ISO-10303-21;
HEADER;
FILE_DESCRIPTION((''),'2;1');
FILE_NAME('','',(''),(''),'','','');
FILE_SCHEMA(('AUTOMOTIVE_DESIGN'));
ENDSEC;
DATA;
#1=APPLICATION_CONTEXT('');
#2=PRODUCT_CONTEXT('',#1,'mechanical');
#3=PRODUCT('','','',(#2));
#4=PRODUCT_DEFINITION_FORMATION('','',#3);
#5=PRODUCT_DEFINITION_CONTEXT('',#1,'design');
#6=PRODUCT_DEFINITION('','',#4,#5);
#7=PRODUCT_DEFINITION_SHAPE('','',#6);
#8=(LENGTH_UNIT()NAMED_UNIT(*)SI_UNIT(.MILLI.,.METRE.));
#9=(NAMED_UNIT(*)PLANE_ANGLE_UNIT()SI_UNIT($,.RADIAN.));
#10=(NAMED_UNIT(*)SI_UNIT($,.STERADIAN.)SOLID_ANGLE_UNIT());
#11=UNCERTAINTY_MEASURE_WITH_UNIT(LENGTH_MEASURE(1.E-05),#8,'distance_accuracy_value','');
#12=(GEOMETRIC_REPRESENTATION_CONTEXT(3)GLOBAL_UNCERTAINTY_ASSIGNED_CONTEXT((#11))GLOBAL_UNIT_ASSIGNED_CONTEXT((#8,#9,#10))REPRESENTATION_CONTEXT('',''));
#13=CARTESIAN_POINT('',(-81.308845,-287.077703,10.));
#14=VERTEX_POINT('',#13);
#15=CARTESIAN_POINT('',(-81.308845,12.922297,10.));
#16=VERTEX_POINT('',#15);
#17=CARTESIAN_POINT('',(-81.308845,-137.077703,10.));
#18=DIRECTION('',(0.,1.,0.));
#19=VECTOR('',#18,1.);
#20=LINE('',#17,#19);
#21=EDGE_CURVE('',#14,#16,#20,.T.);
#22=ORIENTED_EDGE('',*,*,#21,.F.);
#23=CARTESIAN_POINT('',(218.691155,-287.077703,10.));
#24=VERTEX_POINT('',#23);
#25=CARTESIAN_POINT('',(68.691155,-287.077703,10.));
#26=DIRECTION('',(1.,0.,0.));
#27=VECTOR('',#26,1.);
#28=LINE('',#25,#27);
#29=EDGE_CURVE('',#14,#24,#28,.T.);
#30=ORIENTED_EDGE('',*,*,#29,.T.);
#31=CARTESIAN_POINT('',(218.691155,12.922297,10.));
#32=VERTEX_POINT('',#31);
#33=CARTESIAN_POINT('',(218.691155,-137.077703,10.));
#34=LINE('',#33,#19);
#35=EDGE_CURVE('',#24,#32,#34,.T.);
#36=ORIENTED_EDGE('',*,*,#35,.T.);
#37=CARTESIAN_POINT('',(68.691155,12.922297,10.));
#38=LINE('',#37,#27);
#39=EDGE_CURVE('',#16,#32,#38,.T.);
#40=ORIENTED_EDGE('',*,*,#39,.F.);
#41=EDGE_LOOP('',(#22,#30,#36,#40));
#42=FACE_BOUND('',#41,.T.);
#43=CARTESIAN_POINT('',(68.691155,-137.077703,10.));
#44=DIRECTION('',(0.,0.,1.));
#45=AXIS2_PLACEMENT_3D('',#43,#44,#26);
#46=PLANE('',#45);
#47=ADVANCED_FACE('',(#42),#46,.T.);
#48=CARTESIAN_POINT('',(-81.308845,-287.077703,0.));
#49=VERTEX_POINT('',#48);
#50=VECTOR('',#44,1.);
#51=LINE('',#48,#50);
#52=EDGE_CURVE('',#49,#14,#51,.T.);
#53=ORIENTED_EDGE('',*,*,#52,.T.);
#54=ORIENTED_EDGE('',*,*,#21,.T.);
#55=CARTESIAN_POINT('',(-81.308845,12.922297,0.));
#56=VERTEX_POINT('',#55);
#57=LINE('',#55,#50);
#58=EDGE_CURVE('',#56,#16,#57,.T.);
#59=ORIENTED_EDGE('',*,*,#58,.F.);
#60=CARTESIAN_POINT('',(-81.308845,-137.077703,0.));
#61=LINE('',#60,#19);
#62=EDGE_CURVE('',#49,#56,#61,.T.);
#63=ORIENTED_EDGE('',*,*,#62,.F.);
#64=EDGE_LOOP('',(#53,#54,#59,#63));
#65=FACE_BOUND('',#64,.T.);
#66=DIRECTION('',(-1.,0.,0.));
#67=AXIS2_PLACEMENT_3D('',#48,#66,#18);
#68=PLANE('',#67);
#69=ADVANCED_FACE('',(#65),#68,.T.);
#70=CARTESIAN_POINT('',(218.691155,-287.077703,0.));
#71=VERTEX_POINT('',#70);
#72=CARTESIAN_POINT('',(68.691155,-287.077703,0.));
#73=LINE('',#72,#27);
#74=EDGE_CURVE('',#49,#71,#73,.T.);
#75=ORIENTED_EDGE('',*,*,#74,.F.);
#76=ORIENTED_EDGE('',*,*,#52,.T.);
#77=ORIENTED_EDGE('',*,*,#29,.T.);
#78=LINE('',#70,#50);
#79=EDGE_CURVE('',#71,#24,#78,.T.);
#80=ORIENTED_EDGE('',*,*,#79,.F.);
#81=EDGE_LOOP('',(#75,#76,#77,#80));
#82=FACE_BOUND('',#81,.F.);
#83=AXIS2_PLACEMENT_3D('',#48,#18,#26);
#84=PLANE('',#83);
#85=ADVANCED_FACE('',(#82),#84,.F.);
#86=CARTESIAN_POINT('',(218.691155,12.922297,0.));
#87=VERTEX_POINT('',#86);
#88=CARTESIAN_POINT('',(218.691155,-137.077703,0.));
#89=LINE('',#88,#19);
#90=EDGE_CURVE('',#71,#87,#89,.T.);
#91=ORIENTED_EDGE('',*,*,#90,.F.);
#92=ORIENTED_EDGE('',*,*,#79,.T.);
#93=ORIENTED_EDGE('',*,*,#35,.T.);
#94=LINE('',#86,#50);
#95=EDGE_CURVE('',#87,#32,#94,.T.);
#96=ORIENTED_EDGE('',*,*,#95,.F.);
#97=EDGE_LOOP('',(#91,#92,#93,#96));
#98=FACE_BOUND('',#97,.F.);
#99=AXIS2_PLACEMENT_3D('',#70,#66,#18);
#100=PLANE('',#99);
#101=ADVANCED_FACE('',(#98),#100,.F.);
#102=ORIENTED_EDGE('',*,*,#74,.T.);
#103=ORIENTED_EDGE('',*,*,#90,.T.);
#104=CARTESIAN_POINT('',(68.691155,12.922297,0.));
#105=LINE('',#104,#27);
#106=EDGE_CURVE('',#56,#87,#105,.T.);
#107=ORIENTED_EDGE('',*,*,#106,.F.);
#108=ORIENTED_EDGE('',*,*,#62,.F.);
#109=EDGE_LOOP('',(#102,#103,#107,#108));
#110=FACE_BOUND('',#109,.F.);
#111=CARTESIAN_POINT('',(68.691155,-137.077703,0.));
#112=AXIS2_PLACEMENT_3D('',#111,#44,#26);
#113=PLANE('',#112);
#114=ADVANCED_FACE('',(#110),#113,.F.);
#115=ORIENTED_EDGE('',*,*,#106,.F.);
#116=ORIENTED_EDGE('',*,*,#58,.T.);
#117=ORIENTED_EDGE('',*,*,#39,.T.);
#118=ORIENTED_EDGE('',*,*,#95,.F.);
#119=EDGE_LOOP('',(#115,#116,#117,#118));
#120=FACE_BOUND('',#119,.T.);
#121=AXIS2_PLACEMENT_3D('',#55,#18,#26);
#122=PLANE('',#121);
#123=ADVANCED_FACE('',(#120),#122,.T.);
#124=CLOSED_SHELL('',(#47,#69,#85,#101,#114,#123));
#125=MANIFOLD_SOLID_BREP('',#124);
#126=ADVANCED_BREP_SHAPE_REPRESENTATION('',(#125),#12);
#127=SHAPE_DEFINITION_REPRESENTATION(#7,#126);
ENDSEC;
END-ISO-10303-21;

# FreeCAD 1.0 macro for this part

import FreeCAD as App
import Part
import Sketcher

V = App.Vector
Q = App.Units.Quantity


def add_polygon(sketch, points):
    """Adds a closed chain of lines whose ends are joined by coincident constraints."""
    first, n = sketch.GeometryCount, len(points)
    for a, b in zip(points, points[1:] + points[:1]):
        sketch.addGeometry(Part.LineSegment(App.Vector(*a, 0), App.Vector(*b, 0)), False)
    for i in range(n):
        sketch.addConstraint(Sketcher.Constraint("Coincident", first + i, 2, first + (i + 1) % n, 1))

doc = App.newDocument("Part")
params = doc.addObject("Spreadsheet::Sheet", "Params")
for row, (alias, value) in enumerate([
    ("sketch1_width", "300 mm"),
    ("pad1_length", "10 mm"),
], start=1):
    params.set(f"A{row}", alias)
    params.set(f"B{row}", "=" + value)
    params.setAlias(f"B{row}", alias)

body = doc.addObject("PartDesign::Body", "Body")

# Sketch on XY plane
sketch1 = doc.addObject("Sketcher::SketchObject", "Sketch")
body.addObject(sketch1)
sketch1.AttachmentSupport = (doc.XY_Plane, [""])
sketch1.MapMode = "FlatFace"
add_polygon(sketch1, [(-81, 13), (-81, -287), (219, -287), (219, 13)])  # lines 0-3
sketch1.addConstraint([
    Sketcher.Constraint("Vertical", 0),
    Sketcher.Constraint("Horizontal", 1),
    Sketcher.Constraint("Vertical", 2),
    Sketcher.Constraint("Horizontal", 3),
    Sketcher.Constraint("Equal", 3, 0),
    Sketcher.Constraint("DistanceX", 1, 1, 1, 2, Q("300 mm")),
    Sketcher.Constraint("DistanceX", 0, 2, -1, 1, Q("81.308845 mm")),
    Sketcher.Constraint("DistanceY", 0, 2, -1, 1, Q("287.077703 mm")),
])
sketch1.setExpression("Constraints[9]", "Params.sketch1_width")
pad1 = doc.addObject("PartDesign::Pad", "Pad")
body.addObject(pad1)
pad1.Profile = sketch1
pad1.setExpression("Length", "Params.pad1_length")

doc.recompute()
